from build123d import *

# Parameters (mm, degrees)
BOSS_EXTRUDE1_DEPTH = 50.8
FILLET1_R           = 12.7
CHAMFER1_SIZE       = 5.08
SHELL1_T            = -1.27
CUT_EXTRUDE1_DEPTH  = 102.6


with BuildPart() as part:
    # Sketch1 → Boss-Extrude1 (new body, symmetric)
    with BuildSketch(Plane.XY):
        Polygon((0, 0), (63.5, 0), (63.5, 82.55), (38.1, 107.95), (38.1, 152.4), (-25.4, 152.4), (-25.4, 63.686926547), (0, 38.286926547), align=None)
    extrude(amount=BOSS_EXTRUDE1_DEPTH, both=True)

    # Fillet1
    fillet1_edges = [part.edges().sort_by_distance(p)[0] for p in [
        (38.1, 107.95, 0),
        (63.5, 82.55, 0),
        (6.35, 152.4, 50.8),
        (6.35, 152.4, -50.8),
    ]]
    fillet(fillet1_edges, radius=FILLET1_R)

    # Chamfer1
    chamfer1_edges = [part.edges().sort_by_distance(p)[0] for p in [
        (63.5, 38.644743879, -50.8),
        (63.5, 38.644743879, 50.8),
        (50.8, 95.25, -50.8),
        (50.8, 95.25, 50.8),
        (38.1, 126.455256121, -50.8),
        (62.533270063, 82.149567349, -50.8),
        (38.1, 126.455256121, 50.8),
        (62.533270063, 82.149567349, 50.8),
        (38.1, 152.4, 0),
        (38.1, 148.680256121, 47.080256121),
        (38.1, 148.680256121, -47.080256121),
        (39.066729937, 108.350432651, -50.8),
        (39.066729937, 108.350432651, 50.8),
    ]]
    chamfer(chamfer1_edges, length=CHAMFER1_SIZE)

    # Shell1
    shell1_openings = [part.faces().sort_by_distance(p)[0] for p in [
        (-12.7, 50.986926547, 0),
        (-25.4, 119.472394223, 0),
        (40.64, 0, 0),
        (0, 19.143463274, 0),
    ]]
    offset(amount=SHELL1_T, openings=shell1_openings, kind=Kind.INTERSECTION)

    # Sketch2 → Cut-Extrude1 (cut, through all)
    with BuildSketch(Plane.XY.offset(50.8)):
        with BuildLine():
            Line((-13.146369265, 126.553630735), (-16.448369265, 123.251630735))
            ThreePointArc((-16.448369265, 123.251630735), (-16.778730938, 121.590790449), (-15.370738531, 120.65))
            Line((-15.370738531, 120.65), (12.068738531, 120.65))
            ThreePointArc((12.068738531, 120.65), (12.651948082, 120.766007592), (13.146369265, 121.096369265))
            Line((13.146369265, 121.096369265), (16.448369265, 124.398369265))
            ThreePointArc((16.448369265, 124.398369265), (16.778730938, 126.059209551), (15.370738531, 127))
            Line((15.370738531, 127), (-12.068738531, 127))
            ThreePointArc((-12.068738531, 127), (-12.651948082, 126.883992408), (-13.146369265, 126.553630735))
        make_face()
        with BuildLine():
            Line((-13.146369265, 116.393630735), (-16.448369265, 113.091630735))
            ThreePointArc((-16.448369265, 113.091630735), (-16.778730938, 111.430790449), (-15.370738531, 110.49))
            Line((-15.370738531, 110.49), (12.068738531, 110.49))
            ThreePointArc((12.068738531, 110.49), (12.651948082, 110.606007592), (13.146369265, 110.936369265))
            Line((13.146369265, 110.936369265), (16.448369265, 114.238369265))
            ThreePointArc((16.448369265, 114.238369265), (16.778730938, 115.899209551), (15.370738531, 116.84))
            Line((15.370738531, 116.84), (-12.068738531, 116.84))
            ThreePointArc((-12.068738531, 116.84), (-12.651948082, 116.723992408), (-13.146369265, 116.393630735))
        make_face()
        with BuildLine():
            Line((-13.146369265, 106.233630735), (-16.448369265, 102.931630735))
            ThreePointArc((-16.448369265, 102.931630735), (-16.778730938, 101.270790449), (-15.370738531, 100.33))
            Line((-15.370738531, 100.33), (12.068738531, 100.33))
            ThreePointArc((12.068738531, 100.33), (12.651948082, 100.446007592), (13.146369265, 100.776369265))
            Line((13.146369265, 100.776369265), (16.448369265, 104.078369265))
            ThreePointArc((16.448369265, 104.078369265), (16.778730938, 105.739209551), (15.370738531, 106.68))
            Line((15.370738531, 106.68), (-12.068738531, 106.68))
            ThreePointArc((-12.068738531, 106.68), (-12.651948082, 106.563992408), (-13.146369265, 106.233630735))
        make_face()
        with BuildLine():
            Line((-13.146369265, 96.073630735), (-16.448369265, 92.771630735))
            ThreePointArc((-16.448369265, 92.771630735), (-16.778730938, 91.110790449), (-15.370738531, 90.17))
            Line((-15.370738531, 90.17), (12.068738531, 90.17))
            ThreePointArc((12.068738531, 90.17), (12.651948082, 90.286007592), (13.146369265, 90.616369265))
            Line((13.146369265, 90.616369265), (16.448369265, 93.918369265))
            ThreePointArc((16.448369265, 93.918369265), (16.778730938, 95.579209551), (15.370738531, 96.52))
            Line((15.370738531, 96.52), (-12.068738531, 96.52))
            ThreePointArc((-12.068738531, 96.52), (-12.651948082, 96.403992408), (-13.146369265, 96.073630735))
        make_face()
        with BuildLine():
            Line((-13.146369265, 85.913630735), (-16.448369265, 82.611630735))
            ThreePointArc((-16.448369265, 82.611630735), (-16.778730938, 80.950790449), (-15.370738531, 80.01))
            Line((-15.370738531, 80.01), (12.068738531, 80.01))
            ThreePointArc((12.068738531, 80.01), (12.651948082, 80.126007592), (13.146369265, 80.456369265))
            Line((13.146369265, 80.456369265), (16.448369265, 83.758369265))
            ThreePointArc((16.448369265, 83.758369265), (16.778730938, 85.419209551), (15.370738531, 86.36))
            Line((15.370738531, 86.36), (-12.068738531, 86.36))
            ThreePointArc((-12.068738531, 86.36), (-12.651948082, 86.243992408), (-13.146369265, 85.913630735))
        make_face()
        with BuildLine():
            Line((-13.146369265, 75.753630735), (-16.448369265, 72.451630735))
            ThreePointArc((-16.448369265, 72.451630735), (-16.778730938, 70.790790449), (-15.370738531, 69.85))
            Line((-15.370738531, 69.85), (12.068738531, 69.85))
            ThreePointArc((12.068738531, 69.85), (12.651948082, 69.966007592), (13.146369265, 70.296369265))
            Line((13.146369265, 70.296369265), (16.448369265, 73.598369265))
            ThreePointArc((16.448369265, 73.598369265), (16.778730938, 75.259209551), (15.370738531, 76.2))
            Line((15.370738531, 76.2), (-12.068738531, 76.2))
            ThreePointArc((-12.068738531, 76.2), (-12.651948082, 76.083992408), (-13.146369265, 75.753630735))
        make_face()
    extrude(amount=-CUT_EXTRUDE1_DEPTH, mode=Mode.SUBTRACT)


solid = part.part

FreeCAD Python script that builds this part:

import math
import FreeCAD as App
import Part
import Sketcher
from FreeCAD import Vector
Q = App.Units.Quantity


def edges_at(feature, points):
    """Names of the edges that pass closest to the given points."""
    edges = feature.Shape.Edges
    near = lambda p: min(range(len(edges)), key=lambda i: edges[i].distToShape(Part.Vertex(*p))[0])
    return sorted({f"Edge{near(p) + 1}" for p in points})


def faces_at(feature, points):
    """Names of the faces that lie closest to the given points."""
    faces = feature.Shape.Faces
    near = lambda p: min(range(len(faces)), key=lambda i: faces[i].distToShape(Part.Vertex(*p))[0])
    return sorted({f"Face{near(p) + 1}" for p in points})

doc = App.newDocument("Part")
body = doc.addObject("PartDesign::Body", "Body")

# Sketch on XY plane
sketch1 = body.newObject("Sketcher::SketchObject", "Sketch")
sketch1.AttachmentSupport = (doc.getObject("XY_Plane"), [""])
sketch1.MapMode = "FlatFace"
sketch1.addGeometry(Part.LineSegment(Vector(0, 0, 0), Vector(63.5, 0, 0)), False)
sketch1.addGeometry(Part.LineSegment(Vector(63.5, 0, 0), Vector(63.5, 82.55, 0)), False)
sketch1.addGeometry(Part.LineSegment(Vector(63.5, 82.55, 0), Vector(38.1, 107.95, 0)), False)
sketch1.addGeometry(Part.LineSegment(Vector(38.1, 107.95, 0), Vector(38.1, 152.4, 0)), False)
sketch1.addGeometry(Part.LineSegment(Vector(38.1, 152.4, 0), Vector(-25.4, 152.4, 0)), False)
sketch1.addGeometry(Part.LineSegment(Vector(-25.4, 152.4, 0), Vector(-25.4, 63.686927, 0)), False)
sketch1.addGeometry(Part.LineSegment(Vector(-25.4, 63.686927, 0), Vector(0, 38.286927, 0)), False)
sketch1.addGeometry(Part.LineSegment(Vector(0, 38.286927, 0), Vector(0, 0, 0)), False)
sketch1.addConstraint(Sketcher.Constraint("Coincident", 0, 2, 1, 1))
sketch1.addConstraint(Sketcher.Constraint("Coincident", 1, 2, 2, 1))
sketch1.addConstraint(Sketcher.Constraint("Coincident", 2, 2, 3, 1))
sketch1.addConstraint(Sketcher.Constraint("Coincident", 3, 2, 4, 1))
sketch1.addConstraint(Sketcher.Constraint("Coincident", 4, 2, 5, 1))
sketch1.addConstraint(Sketcher.Constraint("Coincident", 5, 2, 6, 1))
sketch1.addConstraint(Sketcher.Constraint("Coincident", 6, 2, 7, 1))
sketch1.addConstraint(Sketcher.Constraint("Coincident", 7, 2, 0, 1))
sketch1.addConstraint(Sketcher.Constraint("Horizontal", 0))
sketch1.addConstraint(Sketcher.Constraint("Vertical", 1))
sketch1.addConstraint(Sketcher.Constraint("Vertical", 3))
sketch1.addConstraint(Sketcher.Constraint("Horizontal", 4))
sketch1.addConstraint(Sketcher.Constraint("Vertical", 5))
sketch1.addConstraint(Sketcher.Constraint("Vertical", 7))
sketch1.addConstraint(Sketcher.Constraint("Coincident", 7, 2, -1, 1))
sketch1.addConstraint(Sketcher.Constraint("Parallel", 2, 6))
sketch1.addConstraint(Sketcher.Constraint("Equal", 0, 4))
sketch1.addConstraint(Sketcher.Constraint("DistanceX", 0, 1, 0, 2, Q("2.5 in")))
sketch1.addConstraint(Sketcher.Constraint("DistanceY", -1, 1, 3, 2, Q("6 in")))
sketch1.addConstraint(Sketcher.Constraint("DistanceX", 4, 2, -1, 1, Q("1 in")))
sketch1.addConstraint(Sketcher.Constraint("Angle", 2, Q("135 deg")))
sketch1.addConstraint(Sketcher.Constraint("DistanceY", 1, 1, 1, 2, Q("3.25 in")))
sketch1.addConstraint(Sketcher.Constraint("DistanceY", 5, 2, 5, 1, Q("88.713073 mm")))
pad1 = body.newObject("PartDesign::Pad", "Pad")
pad1.Profile = sketch1
pad1.Length = Q("4 in")
pad1.Midplane = True
doc.recompute()

fillet = body.newObject("PartDesign::Fillet", "Fillet")
fillet.Base = (pad1, edges_at(pad1, [
    (38.1, 107.95, 0),
    (63.5, 82.55, 0),
    (6.35, 152.4, 50.8),
    (6.35, 152.4, -50.8),
]))
fillet.Radius = Q("0.5 in")
doc.recompute()

chamfer = body.newObject("PartDesign::Chamfer", "Chamfer")
chamfer.Base = (fillet, edges_at(fillet, [
    (63.5, 38.645, -50.8),
    (63.5, 38.645, 50.8),
    (50.8, 95.25, -50.8),
    (50.8, 95.25, 50.8),
    (38.1, 126.455, -50.8),
    (62.533, 82.15, -50.8),
    (38.1, 126.455, 50.8),
    (62.533, 82.15, 50.8),
    (38.1, 152.4, 0),
    (38.1, 148.68, 47.08),
    (38.1, 148.68, -47.08),
    (39.067, 108.35, -50.8),
    (39.067, 108.35, 50.8),
]))
chamfer.Size = Q("0.2 in")
doc.recompute()

thickness = body.newObject("PartDesign::Thickness", "Thickness")
thickness.Base = (chamfer, faces_at(chamfer, [
    (-12.7, 50.987, 0),
    (-25.4, 108.043, 0),
    (31.75, 0, 0),
    (0, 19.143, 0),
]))
thickness.Value = Q("0.05 in")
thickness.Reversed = True
thickness.Join = "Intersection"

# Sketch on XY plane
sketch2 = body.newObject("Sketcher::SketchObject", "Sketch001")
sketch2.AttachmentSupport = (doc.getObject("XY_Plane"), [""])
sketch2.MapMode = "FlatFace"
sketch2.AttachmentOffset = App.Placement(Vector(0, 0, 2 * 25.4), App.Rotation())
sketch2.addGeometry(Part.LineSegment(Vector(-13.146369, 126.553631, 0), Vector(-16.448369, 123.251631, 0)), False)
sketch2.addGeometry(Part.ArcOfCircle(Part.Circle(Vector(-15.370739, 122.174, 0), Vector(0, 0, 1), 1.524), math.radians(135), math.radians(270)), False)
sketch2.addGeometry(Part.LineSegment(Vector(-15.370739, 120.65, 0), Vector(12.068739, 120.65, 0)), False)
sketch2.addGeometry(Part.ArcOfCircle(Part.Circle(Vector(12.068739, 122.174, 0), Vector(0, 0, 1), 1.524), math.radians(-90), math.radians(-45)), False)
sketch2.addGeometry(Part.LineSegment(Vector(13.146369, 121.096369, 0), Vector(16.448369, 124.398369, 0)), False)
sketch2.addGeometry(Part.ArcOfCircle(Part.Circle(Vector(15.370739, 125.476, 0), Vector(0, 0, 1), 1.524), math.radians(-45), math.radians(90)), False)
sketch2.addGeometry(Part.LineSegment(Vector(15.370739, 127, 0), Vector(-12.068739, 127, 0)), False)
sketch2.addGeometry(Part.ArcOfCircle(Part.Circle(Vector(-12.068739, 125.476, 0), Vector(0, 0, 1), 1.524), math.radians(90), math.radians(135)), False)
sketch2.addGeometry(Part.LineSegment(Vector(-13.146369, 116.393631, 0), Vector(-16.448369, 113.091631, 0)), False)
sketch2.addGeometry(Part.ArcOfCircle(Part.Circle(Vector(-15.370739, 112.014, 0), Vector(0, 0, 1), 1.524), math.radians(135), math.radians(270)), False)
sketch2.addGeometry(Part.LineSegment(Vector(-15.370739, 110.49, 0), Vector(12.068739, 110.49, 0)), False)
sketch2.addGeometry(Part.ArcOfCircle(Part.Circle(Vector(12.068739, 112.014, 0), Vector(0, 0, 1), 1.524), math.radians(-90), math.radians(-45)), False)
sketch2.addGeometry(Part.LineSegment(Vector(13.146369, 110.936369, 0), Vector(16.448369, 114.238369, 0)), False)
sketch2.addGeometry(Part.ArcOfCircle(Part.Circle(Vector(15.370739, 115.316, 0), Vector(0, 0, 1), 1.524), math.radians(-45), math.radians(90)), False)
sketch2.addGeometry(Part.LineSegment(Vector(15.370739, 116.84, 0), Vector(-12.068739, 116.84, 0)), False)
sketch2.addGeometry(Part.ArcOfCircle(Part.Circle(Vector(-12.068739, 115.316, 0), Vector(0, 0, 1), 1.524), math.radians(90), math.radians(135)), False)
sketch2.addGeometry(Part.LineSegment(Vector(-13.146369, 106.233631, 0), Vector(-16.448369, 102.931631, 0)), False)
sketch2.addGeometry(Part.ArcOfCircle(Part.Circle(Vector(-15.370739, 101.854, 0), Vector(0, 0, 1), 1.524), math.radians(135), math.radians(270)), False)
sketch2.addGeometry(Part.LineSegment(Vector(-15.370739, 100.33, 0), Vector(12.068739, 100.33, 0)), False)
sketch2.addGeometry(Part.ArcOfCircle(Part.Circle(Vector(12.068739, 101.854, 0), Vector(0, 0, 1), 1.524), math.radians(-90), math.radians(-45)), False)
sketch2.addGeometry(Part.LineSegment(Vector(13.146369, 100.776369, 0), Vector(16.448369, 104.078369, 0)), False)
sketch2.addGeometry(Part.ArcOfCircle(Part.Circle(Vector(15.370739, 105.156, 0), Vector(0, 0, 1), 1.524), math.radians(-45), math.radians(90)), False)
sketch2.addGeometry(Part.LineSegment(Vector(15.370739, 106.68, 0), Vector(-12.068739, 106.68, 0)), False)
sketch2.addGeometry(Part.ArcOfCircle(Part.Circle(Vector(-12.068739, 105.156, 0), Vector(0, 0, 1), 1.524), math.radians(90), math.radians(135)), False)
sketch2.addGeometry(Part.LineSegment(Vector(-13.146369, 96.073631, 0), Vector(-16.448369, 92.771631, 0)), False)
sketch2.addGeometry(Part.ArcOfCircle(Part.Circle(Vector(-15.370739, 91.694, 0), Vector(0, 0, 1), 1.524), math.radians(135), math.radians(270)), False)
sketch2.addGeometry(Part.LineSegment(Vector(-15.370739, 90.17, 0), Vector(12.068739, 90.17, 0)), False)
sketch2.addGeometry(Part.ArcOfCircle(Part.Circle(Vector(12.068739, 91.694, 0), Vector(0, 0, 1), 1.524), math.radians(-90), math.radians(-45)), False)
sketch2.addGeometry(Part.LineSegment(Vector(13.146369, 90.616369, 0), Vector(16.448369, 93.918369, 0)), False)
sketch2.addGeometry(Part.ArcOfCircle(Part.Circle(Vector(15.370739, 94.996, 0), Vector(0, 0, 1), 1.524), math.radians(-45), math.radians(90)), False)
sketch2.addGeometry(Part.LineSegment(Vector(15.370739, 96.52, 0), Vector(-12.068739, 96.52, 0)), False)
sketch2.addGeometry(Part.ArcOfCircle(Part.Circle(Vector(-12.068739, 94.996, 0), Vector(0, 0, 1), 1.524), math.radians(90), math.radians(135)), False)
sketch2.addGeometry(Part.LineSegment(Vector(-13.146369, 85.913631, 0), Vector(-16.448369, 82.611631, 0)), False)
sketch2.addGeometry(Part.ArcOfCircle(Part.Circle(Vector(-15.370739, 81.534, 0), Vector(0, 0, 1), 1.524), math.radians(135), math.radians(270)), False)
sketch2.addGeometry(Part.LineSegment(Vector(-15.370739, 80.01, 0), Vector(12.068739, 80.01, 0)), False)
sketch2.addGeometry(Part.ArcOfCircle(Part.Circle(Vector(12.068739, 81.534, 0), Vector(0, 0, 1), 1.524), math.radians(-90), math.radians(-45)), False)
sketch2.addGeometry(Part.LineSegment(Vector(13.146369, 80.456369, 0), Vector(16.448369, 83.758369, 0)), False)
sketch2.addGeometry(Part.ArcOfCircle(Part.Circle(Vector(15.370739, 84.836, 0), Vector(0, 0, 1), 1.524), math.radians(-45), math.radians(90)), False)
sketch2.addGeometry(Part.LineSegment(Vector(15.370739, 86.36, 0), Vector(-12.068739, 86.36, 0)), False)
sketch2.addGeometry(Part.ArcOfCircle(Part.Circle(Vector(-12.068739, 84.836, 0), Vector(0, 0, 1), 1.524), math.radians(90), math.radians(135)), False)
sketch2.addGeometry(Part.LineSegment(Vector(-13.146369, 75.753631, 0), Vector(-16.448369, 72.451631, 0)), False)
sketch2.addGeometry(Part.ArcOfCircle(Part.Circle(Vector(-15.370739, 71.374, 0), Vector(0, 0, 1), 1.524), math.radians(135), math.radians(270)), False)
sketch2.addGeometry(Part.LineSegment(Vector(-15.370739, 69.85, 0), Vector(12.068739, 69.85, 0)), False)
sketch2.addGeometry(Part.ArcOfCircle(Part.Circle(Vector(12.068739, 71.374, 0), Vector(0, 0, 1), 1.524), math.radians(-90), math.radians(-45)), False)
sketch2.addGeometry(Part.LineSegment(Vector(13.146369, 70.296369, 0), Vector(16.448369, 73.598369, 0)), False)
sketch2.addGeometry(Part.ArcOfCircle(Part.Circle(Vector(15.370739, 74.676, 0), Vector(0, 0, 1), 1.524), math.radians(-45), math.radians(90)), False)
sketch2.addGeometry(Part.LineSegment(Vector(15.370739, 76.2, 0), Vector(-12.068739, 76.2, 0)), False)
sketch2.addGeometry(Part.ArcOfCircle(Part.Circle(Vector(-12.068739, 74.676, 0), Vector(0, 0, 1), 1.524), math.radians(90), math.radians(135)), False)
sketch2.addConstraint(Sketcher.Constraint("Tangent", 0, 2, 1, 1))
sketch2.addConstraint(Sketcher.Constraint("Tangent", 1, 2, 2, 1))
sketch2.addConstraint(Sketcher.Constraint("Tangent", 2, 2, 3, 1))
sketch2.addConstraint(Sketcher.Constraint("Tangent", 3, 2, 4, 1))
sketch2.addConstraint(Sketcher.Constraint("Tangent", 4, 2, 5, 1))
sketch2.addConstraint(Sketcher.Constraint("Tangent", 5, 2, 6, 1))
sketch2.addConstraint(Sketcher.Constraint("Tangent", 6, 2, 7, 1))
sketch2.addConstraint(Sketcher.Constraint("Tangent", 7, 2, 0, 1))
sketch2.addConstraint(Sketcher.Constraint("Tangent", 8, 2, 9, 1))
sketch2.addConstraint(Sketcher.Constraint("Tangent", 9, 2, 10, 1))
sketch2.addConstraint(Sketcher.Constraint("Tangent", 10, 2, 11, 1))
sketch2.addConstraint(Sketcher.Constraint("Tangent", 11, 2, 12, 1))
sketch2.addConstraint(Sketcher.Constraint("Tangent", 12, 2, 13, 1))
sketch2.addConstraint(Sketcher.Constraint("Tangent", 13, 2, 14, 1))
sketch2.addConstraint(Sketcher.Constraint("Tangent", 14, 2, 15, 1))
sketch2.addConstraint(Sketcher.Constraint("Tangent", 15, 2, 8, 1))
sketch2.addConstraint(Sketcher.Constraint("Tangent", 16, 2, 17, 1))
sketch2.addConstraint(Sketcher.Constraint("Tangent", 17, 2, 18, 1))
sketch2.addConstraint(Sketcher.Constraint("Tangent", 18, 2, 19, 1))
sketch2.addConstraint(Sketcher.Constraint("Tangent", 19, 2, 20, 1))
sketch2.addConstraint(Sketcher.Constraint("Tangent", 20, 2, 21, 1))
sketch2.addConstraint(Sketcher.Constraint("Tangent", 21, 2, 22, 1))
sketch2.addConstraint(Sketcher.Constraint("Tangent", 22, 2, 23, 1))
sketch2.addConstraint(Sketcher.Constraint("Tangent", 23, 2, 16, 1))
sketch2.addConstraint(Sketcher.Constraint("Tangent", 24, 2, 25, 1))
sketch2.addConstraint(Sketcher.Constraint("Tangent", 25, 2, 26, 1))
sketch2.addConstraint(Sketcher.Constraint("Tangent", 26, 2, 27, 1))
sketch2.addConstraint(Sketcher.Constraint("Tangent", 27, 2, 28, 1))
sketch2.addConstraint(Sketcher.Constraint("Tangent", 28, 2, 29, 1))
sketch2.addConstraint(Sketcher.Constraint("Tangent", 29, 2, 30, 1))
sketch2.addConstraint(Sketcher.Constraint("Tangent", 30, 2, 31, 1))
sketch2.addConstraint(Sketcher.Constraint("Tangent", 31, 2, 24, 1))
sketch2.addConstraint(Sketcher.Constraint("Tangent", 32, 2, 33, 1))
sketch2.addConstraint(Sketcher.Constraint("Tangent", 33, 2, 34, 1))
sketch2.addConstraint(Sketcher.Constraint("Tangent", 34, 2, 35, 1))
sketch2.addConstraint(Sketcher.Constraint("Tangent", 35, 2, 36, 1))
sketch2.addConstraint(Sketcher.Constraint("Tangent", 36, 2, 37, 1))
sketch2.addConstraint(Sketcher.Constraint("Tangent", 37, 2, 38, 1))
sketch2.addConstraint(Sketcher.Constraint("Tangent", 38, 2, 39, 1))
sketch2.addConstraint(Sketcher.Constraint("Tangent", 39, 2, 32, 1))
sketch2.addConstraint(Sketcher.Constraint("Tangent", 40, 2, 41, 1))
sketch2.addConstraint(Sketcher.Constraint("Tangent", 41, 2, 42, 1))
sketch2.addConstraint(Sketcher.Constraint("Tangent", 42, 2, 43, 1))
sketch2.addConstraint(Sketcher.Constraint("Tangent", 43, 2, 44, 1))
sketch2.addConstraint(Sketcher.Constraint("Tangent", 44, 2, 45, 1))
sketch2.addConstraint(Sketcher.Constraint("Tangent", 45, 2, 46, 1))
sketch2.addConstraint(Sketcher.Constraint("Tangent", 46, 2, 47, 1))
sketch2.addConstraint(Sketcher.Constraint("Tangent", 47, 2, 40, 1))
sketch2.addConstraint(Sketcher.Constraint("Horizontal", 2))
sketch2.addConstraint(Sketcher.Constraint("Horizontal", 6))
sketch2.addConstraint(Sketcher.Constraint("Horizontal", 10))
sketch2.addConstraint(Sketcher.Constraint("Horizontal", 14))
sketch2.addConstraint(Sketcher.Constraint("Horizontal", 18))
sketch2.addConstraint(Sketcher.Constraint("Horizontal", 22))
sketch2.addConstraint(Sketcher.Constraint("Horizontal", 26))
sketch2.addConstraint(Sketcher.Constraint("Horizontal", 30))
sketch2.addConstraint(Sketcher.Constraint("Horizontal", 34))
sketch2.addConstraint(Sketcher.Constraint("Horizontal", 38))
sketch2.addConstraint(Sketcher.Constraint("Horizontal", 42))
sketch2.addConstraint(Sketcher.Constraint("Horizontal", 46))
sketch2.addConstraint(Sketcher.Constraint("Equal", 1, 3))
sketch2.addConstraint(Sketcher.Constraint("Equal", 3, 5))
sketch2.addConstraint(Sketcher.Constraint("Equal", 5, 7))
sketch2.addConstraint(Sketcher.Constraint("Equal", 7, 9))
sketch2.addConstraint(Sketcher.Constraint("Equal", 9, 11))
sketch2.addConstraint(Sketcher.Constraint("Equal", 11, 13))
sketch2.addConstraint(Sketcher.Constraint("Equal", 13, 15))
sketch2.addConstraint(Sketcher.Constraint("Equal", 15, 17))
sketch2.addConstraint(Sketcher.Constraint("Equal", 17, 19))
sketch2.addConstraint(Sketcher.Constraint("Equal", 19, 21))
sketch2.addConstraint(Sketcher.Constraint("Equal", 21, 23))
sketch2.addConstraint(Sketcher.Constraint("Equal", 23, 25))
sketch2.addConstraint(Sketcher.Constraint("Equal", 25, 27))
sketch2.addConstraint(Sketcher.Constraint("Equal", 27, 29))
sketch2.addConstraint(Sketcher.Constraint("Equal", 29, 31))
sketch2.addConstraint(Sketcher.Constraint("Equal", 31, 33))
sketch2.addConstraint(Sketcher.Constraint("Equal", 33, 35))
sketch2.addConstraint(Sketcher.Constraint("Equal", 35, 37))
sketch2.addConstraint(Sketcher.Constraint("Equal", 37, 39))
sketch2.addConstraint(Sketcher.Constraint("Equal", 39, 41))
sketch2.addConstraint(Sketcher.Constraint("Equal", 41, 43))
sketch2.addConstraint(Sketcher.Constraint("Equal", 43, 45))
sketch2.addConstraint(Sketcher.Constraint("Equal", 45, 47))
sketch2.addConstraint(Sketcher.Constraint("Parallel", 0, 4))
sketch2.addConstraint(Sketcher.Constraint("Parallel", 4, 8))
sketch2.addConstraint(Sketcher.Constraint("Parallel", 8, 12))
sketch2.addConstraint(Sketcher.Constraint("Parallel", 12, 16))
sketch2.addConstraint(Sketcher.Constraint("Parallel", 16, 20))
sketch2.addConstraint(Sketcher.Constraint("Parallel", 20, 24))
sketch2.addConstraint(Sketcher.Constraint("Parallel", 24, 28))
sketch2.addConstraint(Sketcher.Constraint("Parallel", 28, 32))
sketch2.addConstraint(Sketcher.Constraint("Parallel", 32, 36))
sketch2.addConstraint(Sketcher.Constraint("Parallel", 36, 40))
sketch2.addConstraint(Sketcher.Constraint("Parallel", 40, 44))
sketch2.addConstraint(Sketcher.Constraint("Vertical", 1, 3, 9, 3))
sketch2.addConstraint(Sketcher.Constraint("Vertical", 3, 3, 11, 3))
sketch2.addConstraint(Sketcher.Constraint("Vertical", 5, 3, 13, 3))
sketch2.addConstraint(Sketcher.Constraint("Vertical", 9, 3, 17, 3))
sketch2.addConstraint(Sketcher.Constraint("Vertical", 11, 3, 19, 3))
sketch2.addConstraint(Sketcher.Constraint("Vertical", 13, 3, 21, 3))
sketch2.addConstraint(Sketcher.Constraint("Vertical", 17, 3, 25, 3))
sketch2.addConstraint(Sketcher.Constraint("Vertical", 19, 3, 27, 3))
sketch2.addConstraint(Sketcher.Constraint("Vertical", 21, 3, 29, 3))
sketch2.addConstraint(Sketcher.Constraint("Vertical", 25, 3, 33, 3))
sketch2.addConstraint(Sketcher.Constraint("Vertical", 27, 3, 35, 3))
sketch2.addConstraint(Sketcher.Constraint("Vertical", 29, 3, 37, 3))
sketch2.addConstraint(Sketcher.Constraint("Vertical", 33, 3, 41, 3))
sketch2.addConstraint(Sketcher.Constraint("Vertical", 35, 3, 43, 3))
sketch2.addConstraint(Sketcher.Constraint("Vertical", 37, 3, 45, 3))
sketch2.addConstraint(Sketcher.Constraint("Radius", 1, Q("0.06 in")))
sketch2.addConstraint(Sketcher.Constraint("DistanceY", -1, 1, 5, 2, Q("5 in")))
sketch2.addConstraint(Sketcher.Constraint("DistanceY", -1, 1, 45, 2, Q("3 in")))
sketch2.addConstraint(Sketcher.Constraint("Angle", 0, Q("-135 deg")))
sketch2.addConstraint(Sketcher.Constraint("DistanceY", -1, 1, 13, 2, Q("4.6 in")))
sketch2.addConstraint(Sketcher.Constraint("DistanceY", -1, 1, 21, 2, Q("4.2 in")))
sketch2.addConstraint(Sketcher.Constraint("DistanceY", -1, 1, 29, 2, Q("3.8 in")))
sketch2.addConstraint(Sketcher.Constraint("DistanceY", -1, 1, 37, 2, Q("3.4 in")))
sketch2.addConstraint(Sketcher.Constraint("DistanceY", -1, 1, 1, 3, Q("4.81 in")))
sketch2.addConstraint(Sketcher.Constraint("DistanceX", 2, 1, 2, 2, Q("27.439477 mm")))
sketch2.addConstraint(Sketcher.Constraint("DistanceX", 1, 3, -1, 1, Q("15.370739 mm")))
pocket1 = body.newObject("PartDesign::Pocket", "Pocket")
pocket1.Profile = sketch2
pocket1.Type = "ThroughAll"

doc.recompute()
